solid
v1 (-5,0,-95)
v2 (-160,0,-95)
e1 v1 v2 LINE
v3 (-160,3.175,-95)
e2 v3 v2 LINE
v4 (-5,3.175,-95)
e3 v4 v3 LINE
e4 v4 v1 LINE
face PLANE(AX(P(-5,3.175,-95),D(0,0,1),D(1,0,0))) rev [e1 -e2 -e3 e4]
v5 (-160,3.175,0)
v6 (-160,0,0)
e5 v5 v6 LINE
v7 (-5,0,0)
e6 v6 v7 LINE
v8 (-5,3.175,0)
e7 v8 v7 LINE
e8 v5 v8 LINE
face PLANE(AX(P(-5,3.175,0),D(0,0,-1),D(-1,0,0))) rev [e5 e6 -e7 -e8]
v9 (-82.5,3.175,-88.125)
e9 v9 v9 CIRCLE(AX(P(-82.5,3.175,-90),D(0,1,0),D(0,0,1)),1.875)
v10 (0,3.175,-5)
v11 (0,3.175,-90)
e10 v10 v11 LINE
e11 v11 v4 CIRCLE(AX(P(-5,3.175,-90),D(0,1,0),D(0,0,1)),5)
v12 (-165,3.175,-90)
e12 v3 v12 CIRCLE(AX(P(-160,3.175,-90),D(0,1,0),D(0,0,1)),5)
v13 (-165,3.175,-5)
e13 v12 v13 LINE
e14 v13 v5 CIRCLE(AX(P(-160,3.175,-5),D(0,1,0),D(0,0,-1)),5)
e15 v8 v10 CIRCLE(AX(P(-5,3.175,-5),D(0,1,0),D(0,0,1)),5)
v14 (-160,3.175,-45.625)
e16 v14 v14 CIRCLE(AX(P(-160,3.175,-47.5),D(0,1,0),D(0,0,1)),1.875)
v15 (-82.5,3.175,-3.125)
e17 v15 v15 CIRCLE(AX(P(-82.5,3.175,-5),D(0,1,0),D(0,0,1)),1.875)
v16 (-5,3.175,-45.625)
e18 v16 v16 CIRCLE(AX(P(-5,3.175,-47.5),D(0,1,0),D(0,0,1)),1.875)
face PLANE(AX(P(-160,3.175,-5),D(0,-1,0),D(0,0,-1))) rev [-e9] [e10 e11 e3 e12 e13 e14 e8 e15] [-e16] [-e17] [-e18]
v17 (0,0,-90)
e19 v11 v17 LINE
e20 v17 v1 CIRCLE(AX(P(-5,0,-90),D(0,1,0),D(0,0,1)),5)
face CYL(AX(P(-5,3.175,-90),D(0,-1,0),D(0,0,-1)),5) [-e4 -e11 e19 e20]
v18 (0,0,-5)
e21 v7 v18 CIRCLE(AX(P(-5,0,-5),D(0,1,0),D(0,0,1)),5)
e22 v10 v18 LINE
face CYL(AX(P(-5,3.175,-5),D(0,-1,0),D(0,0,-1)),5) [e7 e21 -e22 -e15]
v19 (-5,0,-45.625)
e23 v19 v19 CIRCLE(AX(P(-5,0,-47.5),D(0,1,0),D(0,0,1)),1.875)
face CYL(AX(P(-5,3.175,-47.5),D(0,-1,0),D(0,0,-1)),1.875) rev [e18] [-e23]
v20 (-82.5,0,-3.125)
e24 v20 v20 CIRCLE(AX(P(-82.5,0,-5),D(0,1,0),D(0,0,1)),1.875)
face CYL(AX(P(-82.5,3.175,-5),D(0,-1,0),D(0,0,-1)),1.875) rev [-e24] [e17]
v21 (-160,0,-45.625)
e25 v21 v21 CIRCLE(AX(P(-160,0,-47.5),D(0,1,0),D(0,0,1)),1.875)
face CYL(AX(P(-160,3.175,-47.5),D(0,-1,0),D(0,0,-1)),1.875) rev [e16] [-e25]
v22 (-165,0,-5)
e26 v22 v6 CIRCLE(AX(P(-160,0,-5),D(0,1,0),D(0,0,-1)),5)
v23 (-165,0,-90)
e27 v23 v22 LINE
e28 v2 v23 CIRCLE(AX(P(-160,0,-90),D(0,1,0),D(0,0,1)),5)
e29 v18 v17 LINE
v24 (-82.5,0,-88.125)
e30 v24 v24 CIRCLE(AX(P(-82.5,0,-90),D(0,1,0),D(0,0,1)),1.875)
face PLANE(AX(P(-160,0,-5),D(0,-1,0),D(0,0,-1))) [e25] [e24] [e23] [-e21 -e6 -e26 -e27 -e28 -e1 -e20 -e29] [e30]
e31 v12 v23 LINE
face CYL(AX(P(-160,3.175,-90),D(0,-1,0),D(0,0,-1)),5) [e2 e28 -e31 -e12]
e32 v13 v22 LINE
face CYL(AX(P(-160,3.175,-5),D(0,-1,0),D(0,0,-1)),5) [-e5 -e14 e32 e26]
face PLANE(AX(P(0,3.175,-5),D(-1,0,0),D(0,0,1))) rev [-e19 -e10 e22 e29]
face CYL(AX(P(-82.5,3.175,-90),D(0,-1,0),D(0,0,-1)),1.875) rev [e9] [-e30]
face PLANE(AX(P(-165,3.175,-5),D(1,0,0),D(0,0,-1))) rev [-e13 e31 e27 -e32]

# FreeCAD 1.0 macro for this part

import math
import FreeCAD as App
import Part
import Sketcher
from FreeCAD import Vector

doc = App.newDocument("Part")
body = doc.addObject("PartDesign::Body", "Body")

sketch1 = body.newObject("Sketcher::SketchObject", "Sketch")
sketch1.AttachmentSupport = (doc.getObject("XZ_Plane"), [""])
sketch1.MapMode = "FlatFace"
sketch1.addGeometry([
    Part.LineSegment(Vector(-160, 0, 0), Vector(-5, 0, 0)),
    Part.ArcOfCircle(Part.Circle(Vector(-5, -5, 0), Vector(0, 0, 1), 5), math.radians(0), math.radians(90)),
    Part.LineSegment(Vector(0, -5, 0), Vector(0, -90, 0)),
    Part.ArcOfCircle(Part.Circle(Vector(-5, -90, 0), Vector(0, 0, 1), 5), math.radians(-90), math.radians(0)),
    Part.LineSegment(Vector(-5, -95, 0), Vector(-160, -95, 0)),
    Part.ArcOfCircle(Part.Circle(Vector(-160, -90, 0), Vector(0, 0, 1), 5), math.radians(180), math.radians(270)),
    Part.LineSegment(Vector(-165, -90, 0), Vector(-165, -5, 0)),
    Part.ArcOfCircle(Part.Circle(Vector(-160, -5, 0), Vector(0, 0, 1), 5), math.radians(90), math.radians(180)),
    Part.Circle(Vector(-82.5, -5, 0), Vector(0, 0, 1), 1.9),
    Part.Circle(Vector(-5, -47.5, 0), Vector(0, 0, 1), 1.9),
    Part.Circle(Vector(-160, -47.5, 0), Vector(0, 0, 1), 1.9),
    Part.Circle(Vector(-82.5, -90, 0), Vector(0, 0, 1), 1.9),
], False)
sketch1.addConstraint([
    Sketcher.Constraint("Tangent", 0, 2, 1, 2),
    Sketcher.Constraint("Tangent", 1, 1, 2, 1),
    Sketcher.Constraint("Tangent", 2, 2, 3, 2),
    Sketcher.Constraint("Tangent", 3, 1, 4, 1),
    Sketcher.Constraint("Tangent", 4, 2, 5, 2),
    Sketcher.Constraint("Tangent", 5, 1, 6, 1),
    Sketcher.Constraint("Tangent", 6, 2, 7, 2),
    Sketcher.Constraint("Tangent", 7, 1, 0, 1),
    Sketcher.Constraint("Horizontal", 0),
    Sketcher.Constraint("Vertical", 2),
    Sketcher.Constraint("Horizontal", 4),
    Sketcher.Constraint("Vertical", 6),
    Sketcher.Constraint("Equal", 1, 3),
    Sketcher.Constraint("Equal", 3, 5),
    Sketcher.Constraint("Equal", 5, 7),
    Sketcher.Constraint("Equal", 8, 9),
    Sketcher.Constraint("Equal", 9, 10),
    Sketcher.Constraint("Equal", 10, 11),
    Sketcher.Constraint("PointOnObject", 0, 2, -1),
    Sketcher.Constraint("PointOnObject", 1, 1, -2),
    Sketcher.Constraint("Horizontal", 7, 3, 8, 3),
    Sketcher.Constraint("Horizontal", 9, 3, 10, 3),
    Sketcher.Constraint("Horizontal", 5, 3, 11, 3),
    Sketcher.Constraint("Vertical", 3, 3, 9, 3),
    Sketcher.Constraint("Vertical", 7, 3, 10, 3),
    Sketcher.Constraint("Vertical", 8, 3, 11, 3),
    Sketcher.Constraint("Radius", 1, 5.0),
    Sketcher.Constraint("Diameter", 8, 3.75),
    Sketcher.Constraint("DistanceX", 0, 1, 0, 2, 155.0),
    Sketcher.Constraint("DistanceY", 2, 2, 2, 1, 85.0),
    Sketcher.Constraint("DistanceX", 8, 3, -1, 1, 82.5),
    Sketcher.Constraint("DistanceY", 9, 3, -1, 1, 47.5),
])
pad1 = body.newObject("PartDesign::Pad", "Pad")
pad1.Profile = sketch1
pad1.Length = 3.175
pad1.Reversed = True

doc.recompute()
